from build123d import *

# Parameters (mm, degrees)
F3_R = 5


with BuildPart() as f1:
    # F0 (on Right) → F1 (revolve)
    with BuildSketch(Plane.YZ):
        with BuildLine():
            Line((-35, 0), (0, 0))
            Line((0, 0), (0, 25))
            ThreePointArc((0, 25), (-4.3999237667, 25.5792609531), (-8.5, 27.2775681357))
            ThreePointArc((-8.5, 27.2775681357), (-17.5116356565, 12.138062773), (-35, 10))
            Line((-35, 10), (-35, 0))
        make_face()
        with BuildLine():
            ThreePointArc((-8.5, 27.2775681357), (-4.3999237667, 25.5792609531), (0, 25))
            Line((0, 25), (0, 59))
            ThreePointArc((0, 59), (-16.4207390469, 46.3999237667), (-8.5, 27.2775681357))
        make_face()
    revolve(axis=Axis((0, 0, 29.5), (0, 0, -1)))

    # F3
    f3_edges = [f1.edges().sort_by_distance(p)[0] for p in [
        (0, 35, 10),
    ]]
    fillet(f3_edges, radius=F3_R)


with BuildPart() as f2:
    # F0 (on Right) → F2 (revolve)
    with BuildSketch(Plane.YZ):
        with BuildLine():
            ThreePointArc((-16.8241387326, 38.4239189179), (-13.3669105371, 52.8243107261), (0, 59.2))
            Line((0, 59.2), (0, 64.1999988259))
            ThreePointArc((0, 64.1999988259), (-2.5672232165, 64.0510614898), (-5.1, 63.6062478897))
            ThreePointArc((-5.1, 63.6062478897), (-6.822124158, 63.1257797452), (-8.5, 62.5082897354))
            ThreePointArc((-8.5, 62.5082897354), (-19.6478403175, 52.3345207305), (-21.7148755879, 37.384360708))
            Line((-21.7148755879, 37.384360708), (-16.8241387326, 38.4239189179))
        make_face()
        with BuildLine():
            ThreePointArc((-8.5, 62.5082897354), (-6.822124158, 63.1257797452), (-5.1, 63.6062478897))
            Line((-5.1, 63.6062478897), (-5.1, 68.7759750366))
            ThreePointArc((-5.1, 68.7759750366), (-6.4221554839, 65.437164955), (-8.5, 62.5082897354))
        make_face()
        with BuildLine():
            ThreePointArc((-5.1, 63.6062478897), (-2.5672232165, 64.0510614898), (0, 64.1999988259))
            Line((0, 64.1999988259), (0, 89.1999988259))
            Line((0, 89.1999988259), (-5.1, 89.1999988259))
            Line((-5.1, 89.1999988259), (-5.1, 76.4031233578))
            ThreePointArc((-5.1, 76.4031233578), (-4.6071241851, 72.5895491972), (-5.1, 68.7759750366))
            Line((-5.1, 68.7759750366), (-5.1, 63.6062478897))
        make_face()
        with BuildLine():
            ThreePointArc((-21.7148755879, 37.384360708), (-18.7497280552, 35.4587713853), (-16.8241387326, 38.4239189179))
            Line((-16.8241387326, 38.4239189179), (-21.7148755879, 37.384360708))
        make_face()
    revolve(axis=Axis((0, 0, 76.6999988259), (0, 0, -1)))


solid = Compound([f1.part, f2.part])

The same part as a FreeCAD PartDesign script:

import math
import FreeCAD as App
import Part
import Sketcher

V = App.Vector
Q = App.Units.Quantity


def edges_at(feature, points):
    """Names of the edges that pass closest to the given points."""
    edges = feature.Shape.Edges
    near = lambda p: min(range(len(edges)), key=lambda i: edges[i].distToShape(Part.Vertex(*p))[0])
    return sorted({f"Edge{near(p) + 1}" for p in points})

doc = App.newDocument("Part")
body = doc.addObject("PartDesign::Body", "Body")

# Sketch on YZ plane
sketch1 = doc.addObject("Sketcher::SketchObject", "Sketch")
body.addObject(sketch1)
sketch1.AttachmentSupport = (doc.YZ_Plane, [""])
sketch1.MapMode = "FlatFace"
sketch1.addGeometry([
    Part.LineSegment(V(-35, 0, 0), V(0, 0, 0)),  # 0
    Part.LineSegment(V(0, 0, 0), V(0, 59, 0)),  # 1
    Part.ArcOfCircle(Part.Circle(V(0, 42, 0), V(0, 0, 1), 17), math.radians(90), math.radians(240)),  # 2
    Part.ArcOfCircle(Part.Circle(V(-28, 29, 0), V(0, 0, 1), 20), math.radians(-109), math.radians(-5)),  # 3
    Part.LineSegment(V(-35, 10, 0), V(-35, 0, 0)),  # 4
], False)
sketch1.addConstraint([
    Sketcher.Constraint("Coincident", 0, 2, 1, 1),
    Sketcher.Constraint("Coincident", 1, 2, 2, 1),
    Sketcher.Constraint("Coincident", 2, 2, 3, 2),
    Sketcher.Constraint("Coincident", 3, 1, 4, 1),
    Sketcher.Constraint("Coincident", 4, 2, 0, 1),
    Sketcher.Constraint("Horizontal", 0),
    Sketcher.Constraint("Vertical", 1),
    Sketcher.Constraint("Vertical", 4),
    Sketcher.Constraint("Coincident", 0, 2, -1, 1),
    Sketcher.Constraint("PointOnObject", 2, 3, -2),
    Sketcher.Constraint("Radius", 2, Q("17 mm")),
    Sketcher.Constraint("Radius", 3, Q("20 mm")),
    Sketcher.Constraint("DistanceX", 0, 1, 0, 2, Q("35 mm")),
    Sketcher.Constraint("DistanceY", 1, 1, 1, 2, Q("59 mm")),
    Sketcher.Constraint("DistanceY", 4, 2, 4, 1, Q("10 mm")),
    Sketcher.Constraint("DistanceX", 2, 2, -1, 1, Q("8.5 mm")),
])
revolution = doc.addObject("PartDesign::Revolution", "Revolution")
body.addObject(revolution)
revolution.Profile = sketch1
revolution.ReferenceAxis = (sketch1, ["V_Axis"])
revolution.Angle = 360
doc.recompute()

fillet = doc.addObject("PartDesign::Fillet", "Fillet")
body.addObject(fillet)
fillet.Base = (revolution, edges_at(revolution, [(0, 35, 10)]))
fillet.Radius = 5
body2 = doc.addObject("PartDesign::Body", "Body001")

# Sketch on YZ plane
sketch2 = doc.addObject("Sketcher::SketchObject", "Sketch001")
body2.addObject(sketch2)
sketch2.AttachmentSupport = (doc.getObject("YZ_Plane001"), [""])
sketch2.MapMode = "FlatFace"
sketch2.addGeometry([
    Part.ArcOfCircle(Part.Circle(V(0, 42, 0), V(0, 0, 1), 17.2), math.radians(90), math.radians(192)),  # 0
    Part.LineSegment(V(0, 59.2, 0), V(0, 89.2, 0)),  # 1
    Part.LineSegment(V(0, 89.2, 0), V(-5.1, 89.2, 0)),  # 2
    Part.LineSegment(V(-5.1, 89.2, 0), V(-5.1, 76.4, 0)),  # 3
    Part.ArcOfCircle(Part.Circle(V(-19.6, 72.6, 0), V(0, 0, 1), 15), math.radians(-15), math.radians(15)),  # 4
    Part.ArcOfCircle(Part.Circle(V(-19.6, 72.6, 0), V(0, 0, 1), 15), math.radians(-42), math.radians(-15)),  # 5
    Part.ArcOfCircle(Part.Circle(V(0, 42, 0), V(0, 0, 1), 22.2), math.radians(113), math.radians(192)),  # 6
    Part.ArcOfCircle(Part.Circle(V(-19.3, 37.9, 0), V(0, 0, 1), 2.5), math.radians(-168), math.radians(12)),  # 7
], False)
sketch2.addConstraint([
    Sketcher.Constraint("Coincident", 0, 1, 1, 1),
    Sketcher.Constraint("Coincident", 1, 2, 2, 1),
    Sketcher.Constraint("Coincident", 2, 2, 3, 1),
    Sketcher.Constraint("Coincident", 3, 2, 4, 2),
    Sketcher.Constraint("Tangent", 4, 1, 5, 2),
    Sketcher.Constraint("Coincident", 5, 1, 6, 1),
    Sketcher.Constraint("Tangent", 6, 2, 7, 1),
    Sketcher.Constraint("Tangent", 7, 2, 0, 2),
    Sketcher.Constraint("Vertical", 1),
    Sketcher.Constraint("Horizontal", 2),
    Sketcher.Constraint("Vertical", 3),
    Sketcher.Constraint("Coincident", 6, 3, 0, 3),
    Sketcher.Constraint("Equal", 4, 5),
    Sketcher.Constraint("PointOnObject", 0, 3, -2),
    Sketcher.Constraint("PointOnObject", 0, 1, -2),
    Sketcher.Constraint("Vertical", 3, 2, 4, 1),
    Sketcher.Constraint("Radius", 4, Q("15 mm")),
    Sketcher.Constraint("Radius", 0, Q("17.2 mm")),
    Sketcher.Constraint("Radius", 6, Q("22.199999 mm")),
    Sketcher.Constraint("DistanceY", 1, 1, 1, 2, Q("29.999999 mm")),
    Sketcher.Constraint("DistanceX", 2, 2, 2, 1, Q("5.1 mm")),
    Sketcher.Constraint("DistanceY", -1, 1, 0, 3, Q("42 mm")),
    Sketcher.Constraint("DistanceX", 5, 1, -1, 1, Q("8.5 mm")),
    Sketcher.Constraint("DistanceY", 3, 2, 3, 1, Q("12.796875 mm")),
    Sketcher.Constraint("DistanceY", -1, 1, 7, 3, Q("37.90414 mm")),
])
revolution2 = doc.addObject("PartDesign::Revolution", "Revolution001")
body2.addObject(revolution2)
revolution2.Profile = sketch2
revolution2.ReferenceAxis = (sketch2, ["V_Axis"])
revolution2.Angle = 360

doc.recompute()
